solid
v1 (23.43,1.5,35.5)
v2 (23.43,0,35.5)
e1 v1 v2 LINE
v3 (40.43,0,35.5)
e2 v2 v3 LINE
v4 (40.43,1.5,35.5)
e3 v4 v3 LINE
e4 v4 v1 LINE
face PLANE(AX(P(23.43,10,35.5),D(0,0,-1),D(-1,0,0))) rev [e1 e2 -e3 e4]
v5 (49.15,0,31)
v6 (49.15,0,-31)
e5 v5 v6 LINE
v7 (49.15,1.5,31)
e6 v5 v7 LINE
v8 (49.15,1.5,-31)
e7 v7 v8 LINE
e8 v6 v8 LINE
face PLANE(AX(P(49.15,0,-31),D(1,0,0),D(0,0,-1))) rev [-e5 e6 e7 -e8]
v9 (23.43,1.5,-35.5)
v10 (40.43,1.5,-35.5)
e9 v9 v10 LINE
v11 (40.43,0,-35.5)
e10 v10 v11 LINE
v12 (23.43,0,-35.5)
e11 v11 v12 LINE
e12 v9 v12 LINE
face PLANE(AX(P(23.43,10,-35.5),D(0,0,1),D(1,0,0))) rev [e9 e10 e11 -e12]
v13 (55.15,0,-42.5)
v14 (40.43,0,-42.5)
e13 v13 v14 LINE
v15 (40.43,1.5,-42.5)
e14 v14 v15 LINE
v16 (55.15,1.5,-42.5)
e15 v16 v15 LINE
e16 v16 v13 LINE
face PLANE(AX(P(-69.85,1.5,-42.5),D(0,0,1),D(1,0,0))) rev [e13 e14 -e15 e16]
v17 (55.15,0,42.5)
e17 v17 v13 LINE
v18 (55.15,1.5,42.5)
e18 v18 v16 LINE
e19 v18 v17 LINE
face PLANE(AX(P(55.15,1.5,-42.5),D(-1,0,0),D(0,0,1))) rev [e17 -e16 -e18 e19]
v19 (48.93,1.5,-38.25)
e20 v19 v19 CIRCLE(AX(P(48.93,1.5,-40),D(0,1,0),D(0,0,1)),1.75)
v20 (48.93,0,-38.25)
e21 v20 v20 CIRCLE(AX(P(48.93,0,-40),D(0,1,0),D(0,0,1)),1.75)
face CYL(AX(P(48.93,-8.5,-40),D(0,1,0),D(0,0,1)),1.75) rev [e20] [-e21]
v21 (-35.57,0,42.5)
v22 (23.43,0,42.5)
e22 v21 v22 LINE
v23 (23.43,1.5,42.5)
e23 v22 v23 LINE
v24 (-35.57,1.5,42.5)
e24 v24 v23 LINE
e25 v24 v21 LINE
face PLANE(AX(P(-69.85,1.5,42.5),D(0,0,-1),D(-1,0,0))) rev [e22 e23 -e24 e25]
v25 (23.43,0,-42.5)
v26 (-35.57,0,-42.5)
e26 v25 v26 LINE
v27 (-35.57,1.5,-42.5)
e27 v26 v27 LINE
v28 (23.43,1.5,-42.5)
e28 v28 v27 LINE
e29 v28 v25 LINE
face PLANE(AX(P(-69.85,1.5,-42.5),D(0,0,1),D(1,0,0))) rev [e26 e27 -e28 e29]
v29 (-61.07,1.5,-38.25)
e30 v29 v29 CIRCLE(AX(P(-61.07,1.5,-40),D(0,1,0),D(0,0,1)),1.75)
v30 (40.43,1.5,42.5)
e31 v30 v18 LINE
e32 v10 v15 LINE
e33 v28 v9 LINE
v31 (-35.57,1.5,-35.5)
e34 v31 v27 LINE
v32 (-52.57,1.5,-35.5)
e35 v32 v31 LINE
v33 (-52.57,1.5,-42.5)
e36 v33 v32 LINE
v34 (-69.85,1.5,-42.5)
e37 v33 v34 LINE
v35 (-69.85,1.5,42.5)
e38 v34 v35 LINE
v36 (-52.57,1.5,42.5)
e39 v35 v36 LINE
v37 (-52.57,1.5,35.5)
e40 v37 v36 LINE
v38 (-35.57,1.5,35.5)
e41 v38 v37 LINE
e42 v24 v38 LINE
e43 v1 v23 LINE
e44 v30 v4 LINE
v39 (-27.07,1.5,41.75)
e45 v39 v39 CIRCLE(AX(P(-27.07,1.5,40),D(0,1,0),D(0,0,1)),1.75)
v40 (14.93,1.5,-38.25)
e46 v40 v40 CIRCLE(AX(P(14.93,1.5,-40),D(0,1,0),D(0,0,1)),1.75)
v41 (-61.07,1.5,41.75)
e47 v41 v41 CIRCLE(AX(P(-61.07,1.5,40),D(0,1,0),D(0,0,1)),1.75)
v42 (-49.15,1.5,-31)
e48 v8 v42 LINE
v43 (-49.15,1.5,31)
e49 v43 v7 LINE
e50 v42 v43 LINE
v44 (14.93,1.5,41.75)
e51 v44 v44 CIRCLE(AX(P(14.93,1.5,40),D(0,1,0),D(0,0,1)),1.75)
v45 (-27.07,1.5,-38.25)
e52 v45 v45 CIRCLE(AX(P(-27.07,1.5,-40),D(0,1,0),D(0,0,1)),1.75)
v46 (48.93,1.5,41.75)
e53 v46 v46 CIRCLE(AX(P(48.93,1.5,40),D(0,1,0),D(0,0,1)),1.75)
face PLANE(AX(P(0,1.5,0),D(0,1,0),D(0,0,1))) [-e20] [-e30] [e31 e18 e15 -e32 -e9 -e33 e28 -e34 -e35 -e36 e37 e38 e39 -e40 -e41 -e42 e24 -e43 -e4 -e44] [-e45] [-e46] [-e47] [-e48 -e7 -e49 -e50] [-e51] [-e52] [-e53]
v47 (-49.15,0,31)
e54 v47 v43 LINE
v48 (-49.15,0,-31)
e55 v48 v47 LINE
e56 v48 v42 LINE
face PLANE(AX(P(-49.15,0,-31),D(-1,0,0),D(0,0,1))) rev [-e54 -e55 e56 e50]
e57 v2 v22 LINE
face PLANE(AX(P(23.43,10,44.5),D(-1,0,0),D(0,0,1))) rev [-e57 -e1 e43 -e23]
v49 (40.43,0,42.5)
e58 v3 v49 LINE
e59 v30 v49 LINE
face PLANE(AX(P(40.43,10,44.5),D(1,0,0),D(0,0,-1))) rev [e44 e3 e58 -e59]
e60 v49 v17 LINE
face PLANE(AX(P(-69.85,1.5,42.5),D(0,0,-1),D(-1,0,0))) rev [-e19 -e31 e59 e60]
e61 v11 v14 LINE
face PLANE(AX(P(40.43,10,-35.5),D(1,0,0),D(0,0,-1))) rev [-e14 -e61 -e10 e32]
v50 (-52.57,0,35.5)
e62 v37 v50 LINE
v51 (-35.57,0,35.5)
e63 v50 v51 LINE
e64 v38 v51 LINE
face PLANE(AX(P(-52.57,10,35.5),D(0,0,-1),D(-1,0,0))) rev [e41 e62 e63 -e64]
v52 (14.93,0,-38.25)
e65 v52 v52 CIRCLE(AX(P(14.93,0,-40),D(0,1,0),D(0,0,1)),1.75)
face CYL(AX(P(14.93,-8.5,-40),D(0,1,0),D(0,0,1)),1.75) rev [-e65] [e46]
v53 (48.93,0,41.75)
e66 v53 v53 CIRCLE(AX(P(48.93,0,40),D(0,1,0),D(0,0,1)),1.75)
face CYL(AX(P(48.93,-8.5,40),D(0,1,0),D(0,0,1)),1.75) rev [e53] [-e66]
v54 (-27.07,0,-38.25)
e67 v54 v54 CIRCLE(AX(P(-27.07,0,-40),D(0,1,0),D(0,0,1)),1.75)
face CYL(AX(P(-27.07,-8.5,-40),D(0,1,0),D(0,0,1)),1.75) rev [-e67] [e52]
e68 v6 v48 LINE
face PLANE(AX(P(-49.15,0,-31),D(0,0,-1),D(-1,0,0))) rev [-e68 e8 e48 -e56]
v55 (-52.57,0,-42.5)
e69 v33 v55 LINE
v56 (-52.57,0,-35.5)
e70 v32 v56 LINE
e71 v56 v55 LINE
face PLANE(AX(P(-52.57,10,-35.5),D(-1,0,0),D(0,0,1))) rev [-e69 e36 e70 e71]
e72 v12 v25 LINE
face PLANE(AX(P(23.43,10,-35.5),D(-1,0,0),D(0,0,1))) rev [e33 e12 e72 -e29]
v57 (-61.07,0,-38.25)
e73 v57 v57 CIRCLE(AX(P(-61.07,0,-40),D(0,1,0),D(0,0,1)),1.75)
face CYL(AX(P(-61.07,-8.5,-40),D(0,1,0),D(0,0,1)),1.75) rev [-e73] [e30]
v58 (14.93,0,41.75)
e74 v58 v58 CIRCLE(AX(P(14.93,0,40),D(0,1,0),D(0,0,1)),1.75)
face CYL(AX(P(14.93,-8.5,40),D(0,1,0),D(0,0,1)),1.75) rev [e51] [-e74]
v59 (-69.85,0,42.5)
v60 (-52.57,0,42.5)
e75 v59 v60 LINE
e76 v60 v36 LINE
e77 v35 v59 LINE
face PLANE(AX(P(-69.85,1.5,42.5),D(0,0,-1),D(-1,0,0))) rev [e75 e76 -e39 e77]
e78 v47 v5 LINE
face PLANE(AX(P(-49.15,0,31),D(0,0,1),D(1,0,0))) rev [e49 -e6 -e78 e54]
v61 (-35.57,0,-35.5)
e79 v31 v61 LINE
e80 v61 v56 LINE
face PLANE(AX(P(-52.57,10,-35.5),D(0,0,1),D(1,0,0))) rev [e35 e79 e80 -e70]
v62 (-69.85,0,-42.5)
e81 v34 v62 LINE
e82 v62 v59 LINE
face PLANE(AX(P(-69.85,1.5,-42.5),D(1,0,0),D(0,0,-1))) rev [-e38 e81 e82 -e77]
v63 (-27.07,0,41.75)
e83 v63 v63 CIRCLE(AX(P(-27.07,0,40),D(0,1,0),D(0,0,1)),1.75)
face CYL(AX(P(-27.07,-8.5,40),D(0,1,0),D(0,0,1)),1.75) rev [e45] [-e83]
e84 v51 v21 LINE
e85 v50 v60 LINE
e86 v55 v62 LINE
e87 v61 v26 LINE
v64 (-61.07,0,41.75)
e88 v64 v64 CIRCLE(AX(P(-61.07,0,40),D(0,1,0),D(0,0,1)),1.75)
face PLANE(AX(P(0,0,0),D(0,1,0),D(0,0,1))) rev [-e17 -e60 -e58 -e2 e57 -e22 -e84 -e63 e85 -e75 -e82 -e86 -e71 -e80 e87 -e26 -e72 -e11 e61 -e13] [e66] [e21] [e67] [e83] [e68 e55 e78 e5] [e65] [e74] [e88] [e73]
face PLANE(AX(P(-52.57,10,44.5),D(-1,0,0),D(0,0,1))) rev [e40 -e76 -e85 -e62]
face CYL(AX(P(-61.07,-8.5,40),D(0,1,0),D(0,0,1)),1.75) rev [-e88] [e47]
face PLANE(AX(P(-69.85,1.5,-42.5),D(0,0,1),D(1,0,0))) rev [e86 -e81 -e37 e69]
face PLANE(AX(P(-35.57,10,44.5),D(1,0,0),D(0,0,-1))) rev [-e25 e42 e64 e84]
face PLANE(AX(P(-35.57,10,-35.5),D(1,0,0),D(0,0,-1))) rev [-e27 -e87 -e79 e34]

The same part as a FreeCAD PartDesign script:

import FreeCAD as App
import Part
import Sketcher

V = App.Vector


def add_polygon(sketch, points):
    """Adds a closed chain of lines whose ends are joined by coincident constraints."""
    first, n = sketch.GeometryCount, len(points)
    for a, b in zip(points, points[1:] + points[:1]):
        sketch.addGeometry(Part.LineSegment(App.Vector(*a, 0), App.Vector(*b, 0)), False)
    for i in range(n):
        sketch.addConstraint(Sketcher.Constraint("Coincident", first + i, 2, first + (i + 1) % n, 1))

doc = App.newDocument("Part")
params = doc.addObject("Spreadsheet::Sheet", "Params")
for row, (alias, value) in enumerate([
    ("sketch1_width", "125 mm"),
    ("sketch1_height", "85 mm"),
    ("pad1_length", "1.5 mm"),
    ("sketch2_height", "62 mm"),
    ("sketch2_width", "98.3 mm"),
    ("pocket1_length", "1.5 mm"),
    ("sketch3_diameter", "3.5 mm"),
    ("pocket2_length", "10 mm"),
    ("sketch4_diameter", "3.5 mm"),
    ("pocket3_length", "10 mm"),
    ("sketch5_width", "17 mm"),
    ("sketch5_height", "9 mm"),
    ("pocket4_length", "10 mm"),
], start=1):
    params.set(f"A{row}", alias)
    params.set(f"B{row}", "=" + value)
    params.setAlias(f"B{row}", alias)

body = doc.addObject("PartDesign::Body", "Body")

# Sketch on XZ plane
sketch1 = body.newObject("Sketcher::SketchObject", "Sketch")
sketch1.AttachmentSupport = (doc.getObject("XZ_Plane"), [""])
sketch1.MapMode = "FlatFace"
add_polygon(sketch1, [(-70, -42), (-70, 42), (55, 42), (55, -42)])  # lines 0-3
sketch1.addConstraint([
    Sketcher.Constraint("Vertical", 0),
    Sketcher.Constraint("Horizontal", 1),
    Sketcher.Constraint("Vertical", 2),
    Sketcher.Constraint("Horizontal", 3),
    Sketcher.Constraint("DistanceX", 1, 1, 1, 2, 125.0),
    Sketcher.Constraint("DistanceY", 0, 1, 0, 2, 85.0),
    Sketcher.Constraint("DistanceY", -1, 1, 0, 2, 42.5),
    Sketcher.Constraint("DistanceX", 0, 2, -1, 1, 69.85),
])
sketch1.setExpression("Constraints[8]", "Params.sketch1_width")
sketch1.setExpression("Constraints[9]", "Params.sketch1_height")
pad1 = body.newObject("PartDesign::Pad", "Pad")
pad1.Profile = sketch1
pad1.setExpression("Length", "Params.pad1_length")
pad1.Reversed = True

# Sketch on XZ plane
sketch2 = body.newObject("Sketcher::SketchObject", "Sketch001")
sketch2.AttachmentSupport = (doc.getObject("XZ_Plane"), [""])
sketch2.MapMode = "FlatFace"
sketch2.AttachmentOffset = App.Placement(V(0, 0, -1.5), App.Rotation())
add_polygon(sketch2, [(-49, -31), (-49, 31), (49, 31), (49, -31)])  # lines 0-3
sketch2.addConstraint([
    Sketcher.Constraint("Vertical", 0),
    Sketcher.Constraint("Horizontal", 1),
    Sketcher.Constraint("Vertical", 2),
    Sketcher.Constraint("Horizontal", 3),
    Sketcher.Constraint("Symmetric", 0, 2, 2, 2, -1, 1),
    Sketcher.Constraint("DistanceY", 0, 1, 0, 2, 62.0),
    Sketcher.Constraint("DistanceX", 1, 1, 1, 2, 98.3),
])
sketch2.setExpression("Constraints[9]", "Params.sketch2_height")
sketch2.setExpression("Constraints[10]", "Params.sketch2_width")
pocket1 = body.newObject("PartDesign::Pocket", "Pocket")
pocket1.Profile = sketch2
pocket1.setExpression("Length", "Params.pocket1_length")
pocket1.Reversed = True

# Sketch on XZ plane
sketch3 = body.newObject("Sketcher::SketchObject", "Sketch002")
sketch3.AttachmentSupport = (doc.getObject("XZ_Plane"), [""])
sketch3.MapMode = "FlatFace"
sketch3.AttachmentOffset = App.Placement(V(0, 0, -1.5), App.Rotation())
sketch3.addGeometry([
    Part.Circle(V(-61.1, -40, 0), V(0, 0, 1), 1.8),
    Part.Circle(V(48.9, -40, 0), V(0, 0, 1), 1.8),
    Part.Circle(V(48.9, 40, 0), V(0, 0, 1), 1.8),
    Part.Circle(V(-61.1, 40, 0), V(0, 0, 1), 1.8),
], False)
sketch3.addConstraint([
    Sketcher.Constraint("Equal", 0, 1),
    Sketcher.Constraint("Equal", 1, 2),
    Sketcher.Constraint("Equal", 2, 3),
    Sketcher.Constraint("Symmetric", 1, 3, 2, 3, -1),
    Sketcher.Constraint("Symmetric", 0, 3, 3, 3, -1),
    Sketcher.Constraint("Horizontal", 0, 3, 1, 3),
    Sketcher.Constraint("Diameter", 0, 3.5),
    Sketcher.Constraint("DistanceY", 0, 3, -1, 1, 40.0),
    Sketcher.Constraint("DistanceX", 0, 3, 1, 3, 110.0),
    Sketcher.Constraint("DistanceX", 0, 3, -1, 1, 61.07),
])
sketch3.setExpression("Constraints[6]", "Params.sketch3_diameter")
pocket2 = body.newObject("PartDesign::Pocket", "Pocket001")
pocket2.Profile = sketch3
pocket2.setExpression("Length", "Params.pocket2_length")
pocket2.Reversed = True

# Sketch on XZ plane
sketch4 = body.newObject("Sketcher::SketchObject", "Sketch003")
sketch4.AttachmentSupport = (doc.getObject("XZ_Plane"), [""])
sketch4.MapMode = "FlatFace"
sketch4.AttachmentOffset = App.Placement(V(0, 0, -1.5), App.Rotation())
sketch4.addGeometry([
    Part.Circle(V(-27.1, 40, 0), V(0, 0, 1), 1.8),
    Part.Circle(V(14.9, 40, 0), V(0, 0, 1), 1.8),
    Part.Circle(V(-27.1, -40, 0), V(0, 0, 1), 1.8),
    Part.Circle(V(14.9, -40, 0), V(0, 0, 1), 1.8),
], False)
sketch4.addConstraint([
    Sketcher.Constraint("Equal", 0, 1),
    Sketcher.Constraint("Equal", 1, 2),
    Sketcher.Constraint("Equal", 2, 3),
    Sketcher.Constraint("Symmetric", 0, 3, 2, 3, -1),
    Sketcher.Constraint("Symmetric", 1, 3, 3, 3, -1),
    Sketcher.Constraint("Horizontal", 0, 3, 1, 3),
    Sketcher.Constraint("Diameter", 0, 3.5),
    Sketcher.Constraint("DistanceY", -1, 1, 0, 3, 40.0),
    Sketcher.Constraint("DistanceX", 0, 3, 1, 3, 42.0),
    Sketcher.Constraint("DistanceX", 0, 3, -1, 1, 27.07),
])
sketch4.setExpression("Constraints[6]", "Params.sketch4_diameter")
pocket3 = body.newObject("PartDesign::Pocket", "Pocket002")
pocket3.Profile = sketch4
pocket3.setExpression("Length", "Params.pocket3_length")
pocket3.Reversed = True

# Sketch on XZ plane
sketch5 = body.newObject("Sketcher::SketchObject", "Sketch004")
sketch5.AttachmentSupport = (doc.getObject("XZ_Plane"), [""])
sketch5.MapMode = "FlatFace"
add_polygon(sketch5, [(-53, 44), (-53, 36), (-36, 36), (-36, 44)])  # lines 0-3
add_polygon(sketch5, [(23, 44), (23, 36), (40, 36), (40, 44)])  # lines 4-7
add_polygon(sketch5, [(-53, -36), (-53, -44), (-36, -44), (-36, -36)])  # lines 8-11
add_polygon(sketch5, [(23, -36), (23, -44), (40, -44), (40, -36)])  # lines 12-15
sketch5.addConstraint([
    Sketcher.Constraint("Vertical", 0),
    Sketcher.Constraint("Horizontal", 1),
    Sketcher.Constraint("Vertical", 2),
    Sketcher.Constraint("Horizontal", 3),
    Sketcher.Constraint("Vertical", 4),
    Sketcher.Constraint("Horizontal", 5),
    Sketcher.Constraint("Vertical", 6),
    Sketcher.Constraint("Horizontal", 7),
    Sketcher.Constraint("Vertical", 8),
    Sketcher.Constraint("Horizontal", 9),
    Sketcher.Constraint("Vertical", 10),
    Sketcher.Constraint("Horizontal", 11),
    Sketcher.Constraint("Vertical", 12),
    Sketcher.Constraint("Horizontal", 13),
    Sketcher.Constraint("Vertical", 14),
    Sketcher.Constraint("Horizontal", 15),
    Sketcher.Constraint("Symmetric", 3, 2, 8, 2, -1),
    Sketcher.Constraint("Symmetric", 1, 2, 10, 2, -1),
    Sketcher.Constraint("Symmetric", 7, 2, 12, 2, -1),
    Sketcher.Constraint("Symmetric", 5, 2, 14, 2, -1),
    Sketcher.Constraint("Horizontal", 1, 2, 4, 2),
    Sketcher.Constraint("Horizontal", 3, 2, 6, 2),
    Sketcher.Constraint("Equal", 3, 5),
    Sketcher.Constraint("DistanceX", 1, 1, 1, 2, 17.0),
    Sketcher.Constraint("DistanceY", 0, 2, 0, 1, 9.0),
    Sketcher.Constraint("DistanceX", 1, 2, 4, 2, 59.0),
    Sketcher.Constraint("DistanceY", 8, 2, 0, 2, 80.0),
    Sketcher.Constraint("DistanceX", 0, 2, -1, 1, 52.57),
])
sketch5.setExpression("Constraints[39]", "Params.sketch5_width")
sketch5.setExpression("Constraints[40]", "Params.sketch5_height")
pocket4 = body.newObject("PartDesign::Pocket", "Pocket003")
pocket4.Profile = sketch5
pocket4.setExpression("Length", "Params.pocket4_length")

doc.recompute()
